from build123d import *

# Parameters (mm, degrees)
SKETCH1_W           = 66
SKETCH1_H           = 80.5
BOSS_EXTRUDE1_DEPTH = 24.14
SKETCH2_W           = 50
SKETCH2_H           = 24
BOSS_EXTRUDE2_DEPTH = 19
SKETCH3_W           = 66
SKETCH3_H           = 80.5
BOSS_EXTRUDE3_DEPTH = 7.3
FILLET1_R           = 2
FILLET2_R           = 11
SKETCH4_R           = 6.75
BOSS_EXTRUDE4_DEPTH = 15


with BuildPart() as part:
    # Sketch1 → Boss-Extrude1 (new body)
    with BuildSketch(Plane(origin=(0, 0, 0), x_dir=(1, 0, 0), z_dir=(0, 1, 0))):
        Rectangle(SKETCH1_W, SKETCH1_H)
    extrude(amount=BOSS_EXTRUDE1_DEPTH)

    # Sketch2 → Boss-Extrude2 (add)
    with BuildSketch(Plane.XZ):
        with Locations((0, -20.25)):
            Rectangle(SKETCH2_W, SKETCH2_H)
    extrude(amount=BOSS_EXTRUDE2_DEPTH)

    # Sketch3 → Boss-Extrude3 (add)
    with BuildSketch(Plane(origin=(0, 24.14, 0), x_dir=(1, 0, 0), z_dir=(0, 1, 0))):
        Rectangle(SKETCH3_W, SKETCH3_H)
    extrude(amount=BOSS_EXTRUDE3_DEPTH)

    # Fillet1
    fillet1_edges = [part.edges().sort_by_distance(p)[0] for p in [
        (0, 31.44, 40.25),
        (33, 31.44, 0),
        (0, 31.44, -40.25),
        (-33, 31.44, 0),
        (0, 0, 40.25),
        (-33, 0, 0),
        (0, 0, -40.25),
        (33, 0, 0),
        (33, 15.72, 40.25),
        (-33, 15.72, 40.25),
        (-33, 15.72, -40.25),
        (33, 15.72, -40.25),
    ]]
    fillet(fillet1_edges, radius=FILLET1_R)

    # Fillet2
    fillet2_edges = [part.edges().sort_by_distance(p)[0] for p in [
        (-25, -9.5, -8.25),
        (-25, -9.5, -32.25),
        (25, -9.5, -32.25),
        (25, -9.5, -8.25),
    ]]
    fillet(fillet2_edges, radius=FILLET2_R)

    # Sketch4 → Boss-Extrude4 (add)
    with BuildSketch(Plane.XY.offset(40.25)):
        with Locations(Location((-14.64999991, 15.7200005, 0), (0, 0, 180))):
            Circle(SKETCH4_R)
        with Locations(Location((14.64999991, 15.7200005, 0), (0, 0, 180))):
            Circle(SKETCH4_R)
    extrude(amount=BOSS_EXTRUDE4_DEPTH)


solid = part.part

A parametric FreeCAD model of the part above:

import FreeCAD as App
import Part
import Sketcher
from FreeCAD import Vector
Q = App.Units.Quantity


def edges_at(feature, points):
    """Names of the edges that pass closest to the given points."""
    edges = feature.Shape.Edges
    near = lambda p: min(range(len(edges)), key=lambda i: edges[i].distToShape(Part.Vertex(*p))[0])
    return sorted({f"Edge{near(p) + 1}" for p in points})


def add_polygon(sketch, points):
    """Adds a closed chain of lines whose ends are joined by coincident constraints."""
    first, n = sketch.GeometryCount, len(points)
    for a, b in zip(points, points[1:] + points[:1]):
        sketch.addGeometry(Part.LineSegment(App.Vector(*a, 0), App.Vector(*b, 0)), False)
    for i in range(n):
        sketch.addConstraint(Sketcher.Constraint("Coincident", first + i, 2, first + (i + 1) % n, 1))

doc = App.newDocument("Part")
body = doc.addObject("PartDesign::Body", "Body")

sketch1 = body.newObject("Sketcher::SketchObject", "Sketch")
sketch1.AttachmentSupport = (doc.getObject("XZ_Plane"), [""])
sketch1.MapMode = "FlatFace"
add_polygon(sketch1, [(-33, -40), (-33, 40), (33, 40), (33, -40)])
sketch1.addConstraint(Sketcher.Constraint("Vertical", 0))
sketch1.addConstraint(Sketcher.Constraint("Horizontal", 1))
sketch1.addConstraint(Sketcher.Constraint("Vertical", 2))
sketch1.addConstraint(Sketcher.Constraint("Horizontal", 3))
sketch1.addConstraint(Sketcher.Constraint("Symmetric", 0, 2, 2, 2, -1, 1))
sketch1.addConstraint(Sketcher.Constraint("DistanceX", 1, 1, 1, 2, Q("66 mm")))
sketch1.addConstraint(Sketcher.Constraint("DistanceY", 0, 1, 0, 2, Q("80.5 mm")))
pad1 = body.newObject("PartDesign::Pad", "Pad")
pad1.Profile = sketch1
pad1.Length = 24.14
pad1.Reversed = True

sketch2 = body.newObject("Sketcher::SketchObject", "Sketch001")
sketch2.AttachmentSupport = (doc.getObject("XZ_Plane"), [""])
sketch2.MapMode = "FlatFace"
add_polygon(sketch2, [(-25, -8), (-25, -32), (25, -32), (25, -8)])
sketch2.addConstraint(Sketcher.Constraint("Vertical", 0))
sketch2.addConstraint(Sketcher.Constraint("Horizontal", 1))
sketch2.addConstraint(Sketcher.Constraint("Vertical", 2))
sketch2.addConstraint(Sketcher.Constraint("Horizontal", 3))
sketch2.addConstraint(Sketcher.Constraint("DistanceX", 1, 1, 1, 2, Q("50 mm")))
sketch2.addConstraint(Sketcher.Constraint("DistanceY", 0, 2, 0, 1, Q("24 mm")))
sketch2.addConstraint(Sketcher.Constraint("DistanceX", 0, 2, -1, 1, Q("25 mm")))
sketch2.addConstraint(Sketcher.Constraint("DistanceY", 0, 2, -1, 1, Q("32.25 mm")))
pad2 = body.newObject("PartDesign::Pad", "Pad001")
pad2.Profile = sketch2
pad2.Length = 19

sketch3 = body.newObject("Sketcher::SketchObject", "Sketch002")
sketch3.AttachmentSupport = (doc.getObject("XZ_Plane"), [""])
sketch3.MapMode = "FlatFace"
sketch3.AttachmentOffset = App.Placement(Vector(0, 0, -24.14), App.Rotation())
add_polygon(sketch3, [(-33, -40), (-33, 40), (33, 40), (33, -40)])
sketch3.addConstraint(Sketcher.Constraint("Vertical", 0))
sketch3.addConstraint(Sketcher.Constraint("Horizontal", 1))
sketch3.addConstraint(Sketcher.Constraint("Vertical", 2))
sketch3.addConstraint(Sketcher.Constraint("Horizontal", 3))
sketch3.addConstraint(Sketcher.Constraint("Symmetric", 0, 2, 2, 2, -1, 1))
sketch3.addConstraint(Sketcher.Constraint("DistanceX", 1, 1, 1, 2, Q("66 mm")))
sketch3.addConstraint(Sketcher.Constraint("DistanceY", 0, 1, 0, 2, Q("80.5 mm")))
pad3 = body.newObject("PartDesign::Pad", "Pad002")
pad3.Profile = sketch3
pad3.Length = 7.3
pad3.Reversed = True
doc.recompute()

fillet = body.newObject("PartDesign::Fillet", "Fillet")
fillet.Base = (pad3, edges_at(pad3, [
    (0, 31.44, 40.25),
    (33, 31.44, 0),
    (0, 31.44, -40.25),
    (-33, 31.44, 0),
    (0, 0, 40.25),
    (-33, 0, 0),
    (0, 0, -40.25),
    (33, 0, 0),
    (33, 15.72, 40.25),
    (-33, 15.72, 40.25),
    (-33, 15.72, -40.25),
    (33, 15.72, -40.25),
]))
fillet.Radius = 2
doc.recompute()

fillet2 = body.newObject("PartDesign::Fillet", "Fillet001")
fillet2.Base = (fillet, edges_at(fillet, [
    (-25, -9.5, -8.25),
    (-25, -9.5, -32.25),
    (25, -9.5, -32.25),
    (25, -9.5, -8.25),
]))
fillet2.Radius = 11

sketch4 = body.newObject("Sketcher::SketchObject", "Sketch003")
sketch4.AttachmentSupport = (doc.getObject("XY_Plane"), [""])
sketch4.MapMode = "FlatFace"
sketch4.AttachmentOffset = App.Placement(Vector(0, 0, 40.25), App.Rotation())
sketch4.addGeometry(Part.Circle(Vector(-15, 16, 0), Vector(0, 0, 1), 7), False)
sketch4.addGeometry(Part.Circle(Vector(15, 16, 0), Vector(0, 0, 1), 7), False)
sketch4.addConstraint(Sketcher.Constraint("Equal", 0, 1))
sketch4.addConstraint(Sketcher.Constraint("Symmetric", 0, 3, 1, 3, -2))
sketch4.addConstraint(Sketcher.Constraint("Diameter", 0, Q("13.5 mm")))
sketch4.addConstraint(Sketcher.Constraint("DistanceX", 0, 3, 1, 3, Q("29.3 mm")))
sketch4.addConstraint(Sketcher.Constraint("DistanceY", -1, 1, 0, 3, Q("15.72 mm")))
pad4 = body.newObject("PartDesign::Pad", "Pad003")
pad4.Profile = sketch4
pad4.Length = 15

doc.recompute()
